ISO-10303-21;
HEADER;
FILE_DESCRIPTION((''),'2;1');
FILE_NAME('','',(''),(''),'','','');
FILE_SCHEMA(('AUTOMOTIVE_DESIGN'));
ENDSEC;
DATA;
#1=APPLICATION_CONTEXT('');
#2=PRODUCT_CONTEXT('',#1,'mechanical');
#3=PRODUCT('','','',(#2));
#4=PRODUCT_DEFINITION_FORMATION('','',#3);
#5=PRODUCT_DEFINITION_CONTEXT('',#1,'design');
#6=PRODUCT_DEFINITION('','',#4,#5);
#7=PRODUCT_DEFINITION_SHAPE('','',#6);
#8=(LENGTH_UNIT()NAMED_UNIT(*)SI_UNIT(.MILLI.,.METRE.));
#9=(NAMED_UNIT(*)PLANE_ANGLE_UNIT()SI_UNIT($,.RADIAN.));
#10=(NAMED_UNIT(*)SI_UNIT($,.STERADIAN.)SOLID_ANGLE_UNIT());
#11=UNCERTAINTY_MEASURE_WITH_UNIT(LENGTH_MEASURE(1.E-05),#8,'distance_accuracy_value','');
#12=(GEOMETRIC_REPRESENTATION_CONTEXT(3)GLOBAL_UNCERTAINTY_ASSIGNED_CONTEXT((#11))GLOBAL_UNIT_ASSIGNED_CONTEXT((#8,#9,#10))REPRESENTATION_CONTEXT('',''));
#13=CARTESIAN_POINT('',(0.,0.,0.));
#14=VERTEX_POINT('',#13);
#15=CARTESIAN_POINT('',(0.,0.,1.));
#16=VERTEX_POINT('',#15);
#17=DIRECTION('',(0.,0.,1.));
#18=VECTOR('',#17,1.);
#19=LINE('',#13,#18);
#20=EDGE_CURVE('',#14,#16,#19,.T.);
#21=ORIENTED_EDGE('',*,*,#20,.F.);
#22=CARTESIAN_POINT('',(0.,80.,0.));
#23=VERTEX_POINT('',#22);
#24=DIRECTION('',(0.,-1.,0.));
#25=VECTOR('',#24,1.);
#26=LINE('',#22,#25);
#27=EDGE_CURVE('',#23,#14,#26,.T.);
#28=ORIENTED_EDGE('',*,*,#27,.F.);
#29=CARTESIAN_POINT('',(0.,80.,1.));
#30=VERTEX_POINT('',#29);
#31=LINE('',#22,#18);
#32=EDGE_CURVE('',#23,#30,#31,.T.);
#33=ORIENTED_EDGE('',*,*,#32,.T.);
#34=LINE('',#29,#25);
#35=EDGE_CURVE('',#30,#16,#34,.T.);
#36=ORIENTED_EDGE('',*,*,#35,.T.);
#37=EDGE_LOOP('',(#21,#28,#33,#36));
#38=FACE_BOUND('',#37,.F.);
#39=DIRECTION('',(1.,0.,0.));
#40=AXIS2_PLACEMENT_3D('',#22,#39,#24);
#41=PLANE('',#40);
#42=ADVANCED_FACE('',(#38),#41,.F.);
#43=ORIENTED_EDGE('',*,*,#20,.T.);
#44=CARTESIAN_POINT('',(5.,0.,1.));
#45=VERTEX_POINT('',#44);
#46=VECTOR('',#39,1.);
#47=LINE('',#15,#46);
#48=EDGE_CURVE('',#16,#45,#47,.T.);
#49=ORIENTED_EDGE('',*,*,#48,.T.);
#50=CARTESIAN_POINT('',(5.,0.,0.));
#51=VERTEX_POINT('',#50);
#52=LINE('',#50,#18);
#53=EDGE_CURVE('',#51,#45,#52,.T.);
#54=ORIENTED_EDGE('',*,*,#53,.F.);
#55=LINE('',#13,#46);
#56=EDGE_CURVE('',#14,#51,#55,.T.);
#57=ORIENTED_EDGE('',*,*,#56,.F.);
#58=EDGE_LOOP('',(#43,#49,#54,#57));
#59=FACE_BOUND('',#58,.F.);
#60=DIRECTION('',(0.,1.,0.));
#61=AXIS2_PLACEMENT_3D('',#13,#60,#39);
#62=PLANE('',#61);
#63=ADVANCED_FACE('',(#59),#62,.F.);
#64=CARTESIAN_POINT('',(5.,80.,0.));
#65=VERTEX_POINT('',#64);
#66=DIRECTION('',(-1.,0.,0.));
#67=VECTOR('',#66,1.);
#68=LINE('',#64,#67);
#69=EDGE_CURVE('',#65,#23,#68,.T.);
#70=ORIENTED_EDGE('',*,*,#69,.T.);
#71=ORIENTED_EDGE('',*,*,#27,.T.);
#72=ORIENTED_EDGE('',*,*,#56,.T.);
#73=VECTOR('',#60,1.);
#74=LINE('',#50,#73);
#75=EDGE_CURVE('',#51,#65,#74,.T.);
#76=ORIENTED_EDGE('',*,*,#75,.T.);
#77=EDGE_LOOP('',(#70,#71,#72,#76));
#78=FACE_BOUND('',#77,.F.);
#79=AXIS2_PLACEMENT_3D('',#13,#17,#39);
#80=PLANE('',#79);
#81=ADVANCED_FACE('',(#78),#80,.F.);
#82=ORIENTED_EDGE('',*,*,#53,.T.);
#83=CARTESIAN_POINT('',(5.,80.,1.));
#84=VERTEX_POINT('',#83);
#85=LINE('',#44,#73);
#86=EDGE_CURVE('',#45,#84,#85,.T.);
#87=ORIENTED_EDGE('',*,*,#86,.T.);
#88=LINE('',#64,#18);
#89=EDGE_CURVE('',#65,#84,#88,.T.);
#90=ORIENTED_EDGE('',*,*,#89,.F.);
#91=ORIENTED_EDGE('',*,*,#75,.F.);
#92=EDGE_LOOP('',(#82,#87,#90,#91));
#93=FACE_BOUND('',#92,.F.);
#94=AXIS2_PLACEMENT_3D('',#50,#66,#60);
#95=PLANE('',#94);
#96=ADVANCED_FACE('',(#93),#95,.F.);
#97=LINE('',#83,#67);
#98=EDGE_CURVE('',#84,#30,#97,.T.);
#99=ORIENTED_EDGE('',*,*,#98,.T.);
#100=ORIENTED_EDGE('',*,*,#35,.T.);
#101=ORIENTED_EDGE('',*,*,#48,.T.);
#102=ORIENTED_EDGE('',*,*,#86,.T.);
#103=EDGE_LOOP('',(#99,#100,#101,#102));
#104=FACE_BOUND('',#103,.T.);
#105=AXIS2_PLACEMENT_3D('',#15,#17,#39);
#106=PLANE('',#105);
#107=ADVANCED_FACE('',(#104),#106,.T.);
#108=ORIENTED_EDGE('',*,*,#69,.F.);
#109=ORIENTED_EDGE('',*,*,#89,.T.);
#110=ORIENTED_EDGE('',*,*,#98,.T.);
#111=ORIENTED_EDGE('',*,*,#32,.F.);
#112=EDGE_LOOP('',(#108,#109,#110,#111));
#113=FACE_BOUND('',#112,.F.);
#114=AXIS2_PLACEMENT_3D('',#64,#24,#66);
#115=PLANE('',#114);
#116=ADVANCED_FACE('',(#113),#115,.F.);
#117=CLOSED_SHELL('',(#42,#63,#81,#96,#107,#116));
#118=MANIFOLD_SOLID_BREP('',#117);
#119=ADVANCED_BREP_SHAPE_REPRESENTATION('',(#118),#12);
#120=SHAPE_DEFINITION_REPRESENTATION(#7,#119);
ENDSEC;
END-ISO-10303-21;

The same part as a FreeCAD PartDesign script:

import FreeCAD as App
import Part
import Sketcher

V = App.Vector
Q = App.Units.Quantity

doc = App.newDocument("Part")
body = doc.addObject("PartDesign::Body", "Body")

# Sketch on XY plane
sketch1 = body.newObject("Sketcher::SketchObject", "Sketch")
sketch1.AttachmentSupport = (doc.getObject("XY_Plane"), [""])
sketch1.MapMode = "FlatFace"
sketch1.addGeometry([
    Part.LineSegment(V(0, 80, 0), V(0, 0, 0)),
    Part.LineSegment(V(0, 0, 0), V(5, 0, 0)),
    Part.LineSegment(V(5, 0, 0), V(5, 80, 0)),
    Part.LineSegment(V(5, 80, 0), V(0, 80, 0)),
], False)
sketch1.addConstraint([
    Sketcher.Constraint("Coincident", 0, 2, 1, 1),
    Sketcher.Constraint("Coincident", 1, 2, 2, 1),
    Sketcher.Constraint("Coincident", 2, 2, 3, 1),
    Sketcher.Constraint("Coincident", 3, 2, 0, 1),
    Sketcher.Constraint("Vertical", 0),
    Sketcher.Constraint("Horizontal", 1),
    Sketcher.Constraint("Vertical", 2),
    Sketcher.Constraint("Horizontal", 3),
    Sketcher.Constraint("Coincident", 0, 2, -1, 1),
    Sketcher.Constraint("DistanceX", 1, 1, 1, 2, Q("5 mm")),
    Sketcher.Constraint("DistanceY", 0, 2, 0, 1, Q("80 mm")),
])
pad1 = body.newObject("PartDesign::Pad", "Pad")
pad1.Profile = sketch1
pad1.Length = 1

doc.recompute()
